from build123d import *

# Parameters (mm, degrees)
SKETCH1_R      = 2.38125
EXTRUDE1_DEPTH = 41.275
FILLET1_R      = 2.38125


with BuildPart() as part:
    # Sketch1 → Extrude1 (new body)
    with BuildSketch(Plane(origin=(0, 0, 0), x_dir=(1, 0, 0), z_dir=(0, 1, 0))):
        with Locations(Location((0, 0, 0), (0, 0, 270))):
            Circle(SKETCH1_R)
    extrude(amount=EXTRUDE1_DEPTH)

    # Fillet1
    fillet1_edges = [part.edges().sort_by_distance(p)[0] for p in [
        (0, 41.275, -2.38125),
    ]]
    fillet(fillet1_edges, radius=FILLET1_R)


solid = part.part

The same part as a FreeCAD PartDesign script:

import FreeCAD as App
import Part
import Sketcher
from FreeCAD import Vector
Q = App.Units.Quantity


def edges_at(feature, points):
    """Names of the edges that pass closest to the given points."""
    edges = feature.Shape.Edges
    near = lambda p: min(range(len(edges)), key=lambda i: edges[i].distToShape(Part.Vertex(*p))[0])
    return sorted({f"Edge{near(p) + 1}" for p in points})

doc = App.newDocument("Part")
body = doc.addObject("PartDesign::Body", "Body")

# Sketch on XZ plane
sketch1 = doc.addObject("Sketcher::SketchObject", "Sketch")
body.addObject(sketch1)
sketch1.AttachmentSupport = (doc.XZ_Plane, [""])
sketch1.MapMode = "FlatFace"
sketch1.addGeometry(Part.Circle(Vector(0, 0, 0), Vector(0, 0, 1), 2.4), False)
sketch1.addConstraint([
    Sketcher.Constraint("Coincident", 0, 3, -1, 1),
    Sketcher.Constraint("Diameter", 0, Q("0.1875 in")),
])
pad1 = doc.addObject("PartDesign::Pad", "Pad")
body.addObject(pad1)
pad1.Profile = sketch1
pad1.Length = Q("1.625 in")
pad1.Reversed = True
doc.recompute()

fillet = doc.addObject("PartDesign::Fillet", "Fillet")
body.addObject(fillet)
fillet.Base = (pad1, edges_at(pad1, [(0, 41.275, -2.381)]))
fillet.Radius = Q("0.09375 in")

doc.recompute()
